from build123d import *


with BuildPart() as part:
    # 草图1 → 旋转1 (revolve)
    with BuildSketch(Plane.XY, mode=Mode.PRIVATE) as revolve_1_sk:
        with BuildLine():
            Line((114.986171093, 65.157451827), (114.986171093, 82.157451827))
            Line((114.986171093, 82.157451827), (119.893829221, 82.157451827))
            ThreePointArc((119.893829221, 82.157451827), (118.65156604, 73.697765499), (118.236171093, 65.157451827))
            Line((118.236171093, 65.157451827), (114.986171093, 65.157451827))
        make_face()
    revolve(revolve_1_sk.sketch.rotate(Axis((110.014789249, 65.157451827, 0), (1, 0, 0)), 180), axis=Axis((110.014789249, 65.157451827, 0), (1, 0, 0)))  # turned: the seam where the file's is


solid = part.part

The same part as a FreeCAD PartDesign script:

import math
import FreeCAD as App
import Part
import Sketcher
Q = App.Units.Quantity

doc = App.newDocument("Part")
params = doc.addObject("Spreadsheet::Sheet", "Params")
for row, (alias, value) in enumerate([
    ("sketch1_radius", "88 mm"),
    ("sketch1_height", "17 mm"),
    ("sketch1_width", "3.25 mm"),
    ("revolution_angle", "360 deg"),
], start=1):
    params.set(f"A{row}", alias)
    params.set(f"B{row}", "=" + value)
    params.setAlias(f"B{row}", alias)

body = doc.addObject("PartDesign::Body", "Body")

sketch1 = body.newObject("Sketcher::SketchObject", "Sketch")
sketch1.AttachmentSupport = (doc.getObject("XY_Plane"), [""])
sketch1.MapMode = "FlatFace"
sketch1.addGeometry([
    Part.LineSegment(App.Vector(115, 82.2, 0), App.Vector(115, 65.2, 0)),
    Part.LineSegment(App.Vector(115, 65.2, 0), App.Vector(118.2, 65.2, 0)),
    Part.ArcOfCircle(Part.Circle(App.Vector(206.2, 65.2, 0), App.Vector(0, 0, 1), 88), math.radians(168.86), math.radians(180)),
    Part.LineSegment(App.Vector(119.9, 82.2, 0), App.Vector(115, 82.2, 0)),
], False)
sketch1.addGeometry(Part.LineSegment(App.Vector(115, 65.2, 0), App.Vector(206.2, 65.2, 0)), True)
sketch1.addConstraint([
    Sketcher.Constraint("Coincident", 0, 2, 1, 1),
    Sketcher.Constraint("Coincident", 1, 2, 2, 2),
    Sketcher.Constraint("Coincident", 2, 1, 3, 1),
    Sketcher.Constraint("Coincident", 3, 2, 0, 1),
    Sketcher.Constraint("Vertical", 0),
    Sketcher.Constraint("Horizontal", 1),
    Sketcher.Constraint("Horizontal", 3),
    Sketcher.Constraint("Horizontal", 4),
    Sketcher.Constraint("Coincident", 4, 1, 0, 2),
    Sketcher.Constraint("Coincident", 4, 2, 2, 3),
    Sketcher.Constraint("Radius", 2, Q("88 mm")),
    Sketcher.Constraint("DistanceY", 0, 2, 0, 1, Q("17 mm")),
    Sketcher.Constraint("DistanceX", 1, 1, 1, 2, Q("3.25 mm")),
    Sketcher.Constraint("DistanceX", -1, 1, 2, 3, Q("206.236171 mm")),
    Sketcher.Constraint("DistanceY", -1, 1, 2, 3, Q("65.157452 mm")),
])
sketch1.setExpression("Constraints[10]", "Params.sketch1_radius")
sketch1.setExpression("Constraints[11]", "Params.sketch1_height")
sketch1.setExpression("Constraints[12]", "Params.sketch1_width")
revolution = body.newObject("PartDesign::Revolution", "Revolution")
revolution.Profile = sketch1
revolution.ReferenceAxis = (sketch1, ["Axis0"])
revolution.setExpression("Angle", "Params.revolution_angle")

doc.recompute()
